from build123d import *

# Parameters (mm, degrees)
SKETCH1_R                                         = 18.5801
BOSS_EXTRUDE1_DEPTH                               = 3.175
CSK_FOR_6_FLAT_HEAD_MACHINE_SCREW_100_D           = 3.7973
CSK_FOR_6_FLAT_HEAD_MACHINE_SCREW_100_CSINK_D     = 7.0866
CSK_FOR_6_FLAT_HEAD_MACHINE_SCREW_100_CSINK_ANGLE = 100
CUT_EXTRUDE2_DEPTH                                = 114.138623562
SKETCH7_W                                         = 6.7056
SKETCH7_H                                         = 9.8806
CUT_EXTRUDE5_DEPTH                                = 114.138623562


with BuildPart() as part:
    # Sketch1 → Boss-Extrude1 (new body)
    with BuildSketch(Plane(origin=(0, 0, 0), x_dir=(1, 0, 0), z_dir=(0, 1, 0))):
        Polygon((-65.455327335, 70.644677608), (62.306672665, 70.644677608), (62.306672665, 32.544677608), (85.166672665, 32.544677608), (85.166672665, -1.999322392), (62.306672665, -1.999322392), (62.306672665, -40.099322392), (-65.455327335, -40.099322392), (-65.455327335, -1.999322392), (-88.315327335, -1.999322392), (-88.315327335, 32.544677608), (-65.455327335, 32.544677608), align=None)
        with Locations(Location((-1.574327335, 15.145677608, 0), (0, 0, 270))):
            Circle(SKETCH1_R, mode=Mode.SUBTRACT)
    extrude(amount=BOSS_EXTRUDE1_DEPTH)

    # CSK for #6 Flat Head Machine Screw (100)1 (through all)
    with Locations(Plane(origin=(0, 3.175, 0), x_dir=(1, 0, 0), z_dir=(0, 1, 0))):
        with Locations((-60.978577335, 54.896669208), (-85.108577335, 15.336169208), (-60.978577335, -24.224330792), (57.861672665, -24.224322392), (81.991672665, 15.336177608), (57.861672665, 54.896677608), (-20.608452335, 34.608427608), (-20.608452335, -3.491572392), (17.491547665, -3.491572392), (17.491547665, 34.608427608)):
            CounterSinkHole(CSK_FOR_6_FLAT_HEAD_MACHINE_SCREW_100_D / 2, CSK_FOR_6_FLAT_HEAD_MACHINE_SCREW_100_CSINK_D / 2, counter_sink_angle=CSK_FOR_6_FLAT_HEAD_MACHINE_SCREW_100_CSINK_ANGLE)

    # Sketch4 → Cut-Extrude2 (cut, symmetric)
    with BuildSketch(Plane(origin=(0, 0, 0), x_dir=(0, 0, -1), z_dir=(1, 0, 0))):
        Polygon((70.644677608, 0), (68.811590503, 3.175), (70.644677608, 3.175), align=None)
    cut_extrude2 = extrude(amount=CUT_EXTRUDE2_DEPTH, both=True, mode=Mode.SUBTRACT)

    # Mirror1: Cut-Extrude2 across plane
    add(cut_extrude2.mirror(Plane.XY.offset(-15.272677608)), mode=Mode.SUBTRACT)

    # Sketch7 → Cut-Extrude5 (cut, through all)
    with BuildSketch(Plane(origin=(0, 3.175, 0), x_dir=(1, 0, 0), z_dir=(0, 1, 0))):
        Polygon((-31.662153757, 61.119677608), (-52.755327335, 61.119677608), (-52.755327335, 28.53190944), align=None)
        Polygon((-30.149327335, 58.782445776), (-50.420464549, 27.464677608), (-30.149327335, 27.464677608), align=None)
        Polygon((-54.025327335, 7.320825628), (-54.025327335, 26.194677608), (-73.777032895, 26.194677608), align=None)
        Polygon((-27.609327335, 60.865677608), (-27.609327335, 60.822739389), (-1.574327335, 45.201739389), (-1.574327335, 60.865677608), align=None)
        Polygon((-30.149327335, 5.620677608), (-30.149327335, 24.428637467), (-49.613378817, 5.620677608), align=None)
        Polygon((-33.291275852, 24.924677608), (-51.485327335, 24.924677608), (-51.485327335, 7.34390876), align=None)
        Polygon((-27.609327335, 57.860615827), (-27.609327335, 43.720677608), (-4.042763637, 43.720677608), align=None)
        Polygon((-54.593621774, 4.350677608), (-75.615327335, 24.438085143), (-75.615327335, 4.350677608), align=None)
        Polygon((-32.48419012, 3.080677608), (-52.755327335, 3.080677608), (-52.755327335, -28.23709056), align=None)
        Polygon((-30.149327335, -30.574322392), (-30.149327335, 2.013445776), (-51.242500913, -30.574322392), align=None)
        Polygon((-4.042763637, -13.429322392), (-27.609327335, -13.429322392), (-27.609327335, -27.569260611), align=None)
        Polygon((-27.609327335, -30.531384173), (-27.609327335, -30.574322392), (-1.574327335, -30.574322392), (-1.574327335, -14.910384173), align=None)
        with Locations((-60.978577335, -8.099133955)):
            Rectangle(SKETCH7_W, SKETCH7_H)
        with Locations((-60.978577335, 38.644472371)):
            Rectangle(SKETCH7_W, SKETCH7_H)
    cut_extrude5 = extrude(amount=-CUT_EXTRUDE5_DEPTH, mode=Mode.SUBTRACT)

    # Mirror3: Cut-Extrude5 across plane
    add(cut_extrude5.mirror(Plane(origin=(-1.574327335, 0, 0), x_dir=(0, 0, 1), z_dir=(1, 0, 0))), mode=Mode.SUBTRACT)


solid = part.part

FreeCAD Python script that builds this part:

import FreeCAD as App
import Part
import Sketcher
Q = App.Units.Quantity


def add_polygon(sketch, points):
    """Adds a closed chain of lines whose ends are joined by coincident constraints."""
    first, n = sketch.GeometryCount, len(points)
    for a, b in zip(points, points[1:] + points[:1]):
        sketch.addGeometry(Part.LineSegment(App.Vector(*a, 0), App.Vector(*b, 0)), False)
    for i in range(n):
        sketch.addConstraint(Sketcher.Constraint("Coincident", first + i, 2, first + (i + 1) % n, 1))

doc = App.newDocument("Part")
body = doc.addObject("PartDesign::Body", "Body")

sketch1 = doc.addObject("Sketcher::SketchObject", "Sketch")
body.addObject(sketch1)
sketch1.AttachmentSupport = (doc.XZ_Plane, [""])
sketch1.MapMode = "FlatFace"
add_polygon(sketch1, [(62, -71), (-65, -71), (-65, -33), (-88, -33), (-88, 2), (-65, 2), (-65, 40), (62, 40), (62, 2), (85, 2), (85, -33), (62, -33)])
sketch1.addGeometry(Part.Circle(App.Vector(-2, -15, 0), App.Vector(0, 0, 1), 19), False)
sketch1.addConstraint([
    Sketcher.Constraint("Horizontal", 0),
    Sketcher.Constraint("Vertical", 1),
    Sketcher.Constraint("Horizontal", 2),
    Sketcher.Constraint("Vertical", 3),
    Sketcher.Constraint("Horizontal", 4),
    Sketcher.Constraint("Vertical", 5),
    Sketcher.Constraint("Horizontal", 6),
    Sketcher.Constraint("Vertical", 7),
    Sketcher.Constraint("Horizontal", 8),
    Sketcher.Constraint("Vertical", 9),
    Sketcher.Constraint("Horizontal", 10),
    Sketcher.Constraint("Vertical", 11),
    Sketcher.Constraint("Horizontal", 4, 2, 7, 2),
    Sketcher.Constraint("Horizontal", 2, 2, 9, 2),
    Sketcher.Constraint("Vertical", 1, 2, 4, 2),
    Sketcher.Constraint("Vertical", 7, 2, 10, 2),
    Sketcher.Constraint("Equal", 4, 8),
    Sketcher.Constraint("Equal", 1, 5),
    Sketcher.Constraint("Diameter", 12, Q("1.463 in")),
    Sketcher.Constraint("DistanceX", 2, 2, 2, 1, Q("0.9 in")),
    Sketcher.Constraint("DistanceY", 1, 1, 1, 2, Q("1.5 in")),
    Sketcher.Constraint("DistanceX", 0, 2, 0, 1, Q("5.03 in")),
    Sketcher.Constraint("DistanceY", 3, 1, 3, 2, Q("1.36 in")),
    Sketcher.Constraint("DistanceX", 0, 2, 12, 3, Q("2.515 in")),
    Sketcher.Constraint("DistanceY", 0, 2, 12, 3, Q("2.185 in")),
    Sketcher.Constraint("DistanceX", 12, 3, -1, 1, 1.574327),
    Sketcher.Constraint("DistanceY", 12, 3, -1, 1, 15.145678),
])
pad1 = doc.addObject("PartDesign::Pad", "Pad")
body.addObject(pad1)
pad1.Profile = sketch1
pad1.Length = Q("0.125 in")
pad1.Reversed = True

sketch2 = doc.addObject("Sketcher::SketchObject", "Sketch001")
body.addObject(sketch2)
sketch2.AttachmentSupport = (doc.XZ_Plane, [""])
sketch2.MapMode = "FlatFace"
sketch2.AttachmentOffset = App.Placement(App.Vector(0, 0, -0.125 * 25.4), App.Rotation())
sketch2.addGeometry([
    Part.Circle(App.Vector(-61, -54.9, 0), App.Vector(0, 0, 1), 1.9),
    Part.Circle(App.Vector(-85.1, -15.3, 0), App.Vector(0, 0, 1), 1.9),
    Part.Circle(App.Vector(-61, 24.2, 0), App.Vector(0, 0, 1), 1.9),
    Part.Circle(App.Vector(57.9, 24.2, 0), App.Vector(0, 0, 1), 1.9),
    Part.Circle(App.Vector(82, -15.3, 0), App.Vector(0, 0, 1), 1.9),
    Part.Circle(App.Vector(57.9, -54.9, 0), App.Vector(0, 0, 1), 1.9),
    Part.Circle(App.Vector(-20.6, -34.6, 0), App.Vector(0, 0, 1), 1.9),
    Part.Circle(App.Vector(-20.6, 3.5, 0), App.Vector(0, 0, 1), 1.9),
    Part.Circle(App.Vector(17.5, 3.5, 0), App.Vector(0, 0, 1), 1.9),
    Part.Circle(App.Vector(17.5, -34.6, 0), App.Vector(0, 0, 1), 1.9),
], False)
sketch2.addConstraint([
    Sketcher.Constraint("Equal", 0, 1),
    Sketcher.Constraint("Equal", 1, 2),
    Sketcher.Constraint("Equal", 2, 3),
    Sketcher.Constraint("Equal", 3, 4),
    Sketcher.Constraint("Equal", 4, 5),
    Sketcher.Constraint("Equal", 5, 6),
    Sketcher.Constraint("Equal", 6, 7),
    Sketcher.Constraint("Equal", 7, 8),
    Sketcher.Constraint("Equal", 8, 9),
    Sketcher.Constraint("Horizontal", 7, 3, 8, 3),
    Sketcher.Constraint("Horizontal", 6, 3, 9, 3),
    Sketcher.Constraint("Vertical", 0, 3, 2, 3),
    Sketcher.Constraint("Vertical", 3, 3, 5, 3),
    Sketcher.Constraint("Vertical", 6, 3, 7, 3),
    Sketcher.Constraint("Vertical", 8, 3, 9, 3),
    Sketcher.Constraint("Diameter", 0, Q("0.1495 in")),
    Sketcher.Constraint("DistanceY", 6, 3, 7, 3, Q("1.5 in")),
    Sketcher.Constraint("DistanceX", 7, 3, 8, 3, Q("1.5 in")),
    Sketcher.Constraint("DistanceX", 1, 3, 0, 3, Q("0.95 in")),
    Sketcher.Constraint("DistanceX", 3, 3, 4, 3, Q("0.95 in")),
    Sketcher.Constraint("DistanceY", 0, 3, 2, 3, Q("3.115 in")),
    Sketcher.Constraint("DistanceY", 5, 3, 3, 3, Q("3.115 in")),
    Sketcher.Constraint("DistanceY", 0, 3, 1, 3, Q("1.5575 in")),
    Sketcher.Constraint("DistanceY", 4, 3, 3, 3, Q("1.5575 in")),
    Sketcher.Constraint("DistanceY", 0, 3, -1, 1, 54.896669),
    Sketcher.Constraint("DistanceX", 2, 3, 3, 3, 118.84025),
    Sketcher.Constraint("DistanceY", 0, 3, 3, 3, 79.120992),
    Sketcher.Constraint("DistanceY", 0, 3, 6, 3, 20.288242),
    Sketcher.Constraint("DistanceX", 0, 3, -1, 1, 60.978577),
    Sketcher.Constraint("DistanceX", 6, 3, -1, 1, 20.608452),
])
doc.recompute()
hole = doc.addObject("PartDesign::Hole", "Hole")
body.addObject(hole)
hole.Profile = sketch2
hole.ThreadType = "None"
hole.Diameter = Q("0.1495 in")
hole.DepthType = "ThroughAll"
hole.HoleCutType = "Countersink"
hole.HoleCutDiameter = Q("0.279 in")
hole.HoleCutCountersinkAngle = 100
hole.Reversed = True

sketch3 = doc.addObject("Sketcher::SketchObject", "Sketch002")
body.addObject(sketch3)
sketch3.AttachmentSupport = (doc.YZ_Plane, [""])
sketch3.MapMode = "FlatFace"
add_polygon(sketch3, [(3.2, -68.8), (0, -70.6), (3.2, -70.6)])
sketch3.addConstraint([
    Sketcher.Constraint("Horizontal", 1),
    Sketcher.Constraint("Vertical", 2),
    Sketcher.Constraint("PointOnObject", 0, 2, -2),
    Sketcher.Constraint("Angle", 0, Q("-150 deg")),
    Sketcher.Constraint("DistanceX", 1, 1, 1, 2, Q("0.125 in")),
    Sketcher.Constraint("DistanceY", 2, 2, -1, 1, 68.811591),
])
pocket1 = doc.addObject("PartDesign::Pocket", "Pocket")
body.addObject(pocket1)
pocket1.Profile = sketch3
pocket1.Length = 228.277247
pocket1.Midplane = True
doc.recompute()

datumplane = doc.addObject("PartDesign::Plane", "DatumPlane")
body.addObject(datumplane)
datumplane.AttachmentSupport = (doc.XY_Plane, [""])
datumplane.MapMode = "FlatFace"
datumplane.AttachmentOffset = App.Placement(App.Vector(0, 0, -15.272678), App.Rotation())
mirrored = doc.addObject("PartDesign::Mirrored", "Mirrored")
body.addObject(mirrored)
mirrored.Originals = [pocket1]
mirrored.MirrorPlane = (datumplane, [""])
body.Tip = mirrored

sketch4 = doc.addObject("Sketcher::SketchObject", "Sketch003")
body.addObject(sketch4)
sketch4.AttachmentSupport = (doc.XZ_Plane, [""])
sketch4.MapMode = "FlatFace"
sketch4.AttachmentOffset = App.Placement(App.Vector(0, 0, -0.125 * 25.4), App.Rotation())
add_polygon(sketch4, [(-31.662, -61.12), (-52.755, -61.12), (-52.755, -28.532)])
add_polygon(sketch4, [(-30.149, -58.782), (-50.42, -27.465), (-30.149, -27.465)])
add_polygon(sketch4, [(-54.025, -7.321), (-54.025, -26.195), (-73.777, -26.195)])
add_polygon(sketch4, [(-27.609, -60.866), (-27.609, -60.823), (-1.574, -45.202), (-1.574, -60.866)])
add_polygon(sketch4, [(-30.149, -5.621), (-30.149, -24.429), (-49.613, -5.621)])
add_polygon(sketch4, [(-33.291, -24.925), (-51.485, -24.925), (-51.485, -7.344)])
add_polygon(sketch4, [(-27.609, -57.861), (-27.609, -43.721), (-4.043, -43.721)])
add_polygon(sketch4, [(-54.594, -4.351), (-75.615, -24.438), (-75.615, -4.351)])
add_polygon(sketch4, [(-32.484, -3.081), (-52.755, -3.081), (-52.755, 28.237)])
add_polygon(sketch4, [(-30.149, 30.574), (-30.149, -2.013), (-51.243, 30.574)])
add_polygon(sketch4, [(-4.043, 13.429), (-27.609, 13.429), (-27.609, 27.569)])
add_polygon(sketch4, [(-27.609, 30.531), (-27.609, 30.574), (-1.574, 30.574), (-1.574, 14.91)])
add_polygon(sketch4, [(-64.331, 3.159), (-64.331, 13.039), (-57.626, 13.039), (-57.626, 3.159)])
add_polygon(sketch4, [(-64.331, -43.585), (-64.331, -33.704), (-57.626, -33.704), (-57.626, -43.585)])
sketch4.addConstraint([
    Sketcher.Constraint("Horizontal", 0),
    Sketcher.Constraint("Vertical", 1),
    Sketcher.Constraint("Horizontal", 4),
    Sketcher.Constraint("Vertical", 5),
    Sketcher.Constraint("Vertical", 6),
    Sketcher.Constraint("Horizontal", 7),
    Sketcher.Constraint("Vertical", 9),
    Sketcher.Constraint("Vertical", 11),
    Sketcher.Constraint("Horizontal", 12),
    Sketcher.Constraint("Vertical", 13),
    Sketcher.Constraint("Horizontal", 15),
    Sketcher.Constraint("Horizontal", 16),
    Sketcher.Constraint("Vertical", 17),
    Sketcher.Constraint("Vertical", 19),
    Sketcher.Constraint("Horizontal", 20),
    Sketcher.Constraint("Vertical", 23),
    Sketcher.Constraint("Horizontal", 24),
    Sketcher.Constraint("Horizontal", 25),
    Sketcher.Constraint("Vertical", 26),
    Sketcher.Constraint("Vertical", 28),
    Sketcher.Constraint("Horizontal", 30),
    Sketcher.Constraint("Horizontal", 31),
    Sketcher.Constraint("Vertical", 32),
    Sketcher.Constraint("Vertical", 34),
    Sketcher.Constraint("Horizontal", 35),
    Sketcher.Constraint("Vertical", 36),
    Sketcher.Constraint("Vertical", 38),
    Sketcher.Constraint("Horizontal", 39),
    Sketcher.Constraint("Vertical", 40),
    Sketcher.Constraint("Horizontal", 41),
    Sketcher.Constraint("Vertical", 42),
    Sketcher.Constraint("Horizontal", 43),
    Sketcher.Constraint("Vertical", 44),
    Sketcher.Constraint("Horizontal", 45),
    Sketcher.Constraint("Parallel", 2, 3),
    Sketcher.Constraint("Parallel", 14, 18),
    Sketcher.Constraint("Parallel", 10, 21),
    Sketcher.Constraint("Parallel", 8, 22),
    Sketcher.Constraint("Parallel", 3, 27),
    Sketcher.Constraint("Parallel", 27, 29),
    Sketcher.Constraint("Parallel", 33, 37),
    Sketcher.Constraint("Horizontal", 30, 2, 34, 2),
    Sketcher.Constraint("Vertical", 5, 2, 13, 2),
    Sketcher.Constraint("Vertical", 12, 2, 19, 2),
    Sketcher.Constraint("Vertical", 1, 2, 25, 2),
    Sketcher.Constraint("Vertical", 15, 2, 28, 2),
    Sketcher.Constraint("Vertical", 21, 2, 31, 2),
    Sketcher.Constraint("Vertical", 20, 2, 33, 2),
    Sketcher.Constraint("Vertical", 32, 2, 34, 2),
    Sketcher.Constraint("Vertical", 11, 2, 35, 2),
    Sketcher.Constraint("Vertical", 41, 2, 42, 2),
    Sketcher.Constraint("Vertical", 40, 2, 43, 2),
    Sketcher.Constraint("Equal", 4, 25),
    Sketcher.Constraint("Equal", 0, 30),
    Sketcher.Constraint("Equal", 19, 32),
    Sketcher.Constraint("Equal", 9, 34),
    Sketcher.Constraint("Equal", 40, 42),
    Sketcher.Constraint("DistanceX", 5, 2, 9, 2, Q("0.1 in")),
    Sketcher.Constraint("DistanceY", 3, 2, 16, 2, Q("0.1 in")),
    Sketcher.Constraint("DistanceX", 6, 2, 16, 2, Q("0.1 in")),
    Sketcher.Constraint("DistanceX", 22, 2, 1, 2, Q("0.9 in")),
    Sketcher.Constraint("DistanceY", 14, 2, 25, 2, Q("0.1 in")),
    Sketcher.Constraint("DistanceX", 12, 2, 12, 1, Q("1.025 in")),
    Sketcher.Constraint("DistanceX", 39, 1, 39, 2, Q("0.264 in")),
    Sketcher.Constraint("DistanceY", 38, 1, 38, 2, Q("0.389 in")),
    Sketcher.Constraint("DistanceX", 1, 2, 4, 2, Q("0.89 in")),
    Sketcher.Constraint("DistanceX", 6, 2, 1, 2, Q("0.05 in")),
    Sketcher.Constraint("DistanceY", 3, 2, 6, 2, Q("0.05 in")),
    Sketcher.Constraint("DistanceY", 2, 2, 11, 2, Q("0.01 in")),
    Sketcher.Constraint("DistanceY", 6, 2, 14, 2, Q("0.81 in")),
    Sketcher.Constraint("DistanceY", 19, 2, 4, 2, Q("0.64 in")),
    Sketcher.Constraint("DistanceY", 7, 2, 23, 2, Q("0.86 in")),
    Sketcher.Constraint("DistanceY", 27, 2, 31, 2, Q("0.65 in")),
    Sketcher.Constraint("DistanceY", 0, 2, 3, 2, Q("1.325 in")),
    Sketcher.Constraint("DistanceY", 9, 2, 10, 2, Q("0.615 in")),
    Sketcher.Constraint("DistanceY", 25, 2, 29, 2, Q("1.325 in")),
    Sketcher.Constraint("Distance", 21, 27.4831),
    Sketcher.Constraint("DistanceX", 15, 1, 15, 2, 19.464051),
    Sketcher.Constraint("DistanceX", 16, 2, 16, 1, 18.194051),
    Sketcher.Constraint("DistanceY", 1, 1, 1, 2, 32.587768),
    Sketcher.Constraint("DistanceY", 5, 2, 5, 1, 31.317768),
    Sketcher.Constraint("DistanceY", 6, 2, 6, 1, 18.873852),
    Sketcher.Constraint("DistanceY", 9, 1, 9, 2, 0.042938),
    Sketcher.Constraint("DistanceY", 13, 2, 13, 1, 18.80796),
    Sketcher.Constraint("DistanceX", 29, 2, -1, 1, 51.242501),
    Sketcher.Constraint("DistanceX", 40, 2, 14, 2, 8.012399),
    Sketcher.Constraint("Distance", 2, 38.818612),
    Sketcher.Constraint("Distance", 22, 29.076039),
    Sketcher.Constraint("DistanceX", 7, 2, 7, 1, 19.751706),
    Sketcher.Constraint("DistanceY", 1, 2, -1, 1, 28.531909),
    Sketcher.Constraint("DistanceY", 25, 2, 38, 2, 16.120112),
    Sketcher.Constraint("DistanceY", 42, 2, -1, 1, 33.704172),
])
pocket2 = doc.addObject("PartDesign::Pocket", "Pocket001")
body.addObject(pocket2)
pocket2.Profile = sketch4
pocket2.Type = "ThroughAll"
pocket2.Reversed = True
doc.recompute()

datumplane2 = doc.addObject("PartDesign::Plane", "DatumPlane001")
body.addObject(datumplane2)
datumplane2.AttachmentSupport = (doc.YZ_Plane, [""])
datumplane2.MapMode = "FlatFace"
datumplane2.AttachmentOffset = App.Placement(App.Vector(0, 0, -1.574327), App.Rotation())
mirrored2 = doc.addObject("PartDesign::Mirrored", "Mirrored001")
body.addObject(mirrored2)
mirrored2.Originals = [pocket2]
mirrored2.MirrorPlane = (datumplane2, [""])
body.Tip = mirrored2

doc.recompute()
